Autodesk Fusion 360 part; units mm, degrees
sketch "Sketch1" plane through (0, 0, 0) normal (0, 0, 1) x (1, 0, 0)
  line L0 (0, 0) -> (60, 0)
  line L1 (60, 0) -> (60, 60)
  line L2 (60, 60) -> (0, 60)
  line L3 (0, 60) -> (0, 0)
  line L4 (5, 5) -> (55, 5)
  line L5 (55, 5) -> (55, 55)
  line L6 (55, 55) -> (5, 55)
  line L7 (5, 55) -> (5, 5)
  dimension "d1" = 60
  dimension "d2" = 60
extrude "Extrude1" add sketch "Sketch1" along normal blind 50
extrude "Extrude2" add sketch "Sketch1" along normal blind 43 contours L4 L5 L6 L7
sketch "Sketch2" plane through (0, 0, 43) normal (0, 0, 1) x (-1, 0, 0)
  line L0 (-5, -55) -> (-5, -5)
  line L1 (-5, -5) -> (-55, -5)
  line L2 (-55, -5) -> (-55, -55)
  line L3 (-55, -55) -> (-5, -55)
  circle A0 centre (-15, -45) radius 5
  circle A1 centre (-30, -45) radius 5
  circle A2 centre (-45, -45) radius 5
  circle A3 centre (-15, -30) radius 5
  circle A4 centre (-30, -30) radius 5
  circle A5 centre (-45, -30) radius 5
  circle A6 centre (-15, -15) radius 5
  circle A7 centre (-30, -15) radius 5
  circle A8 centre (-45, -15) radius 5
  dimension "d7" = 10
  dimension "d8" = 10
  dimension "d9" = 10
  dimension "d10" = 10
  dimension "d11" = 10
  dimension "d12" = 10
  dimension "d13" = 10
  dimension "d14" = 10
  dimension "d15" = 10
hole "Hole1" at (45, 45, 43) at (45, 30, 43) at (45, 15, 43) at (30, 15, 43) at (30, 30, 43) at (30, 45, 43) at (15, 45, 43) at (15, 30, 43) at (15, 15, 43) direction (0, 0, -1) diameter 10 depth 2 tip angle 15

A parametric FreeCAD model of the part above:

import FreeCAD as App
import Part
import Sketcher

V = App.Vector
Q = App.Units.Quantity


def add_polygon(sketch, points):
    """Adds a closed chain of lines whose ends are joined by coincident constraints."""
    first, n = sketch.GeometryCount, len(points)
    for a, b in zip(points, points[1:] + points[:1]):
        sketch.addGeometry(Part.LineSegment(App.Vector(*a, 0), App.Vector(*b, 0)), False)
    for i in range(n):
        sketch.addConstraint(Sketcher.Constraint("Coincident", first + i, 2, first + (i + 1) % n, 1))

doc = App.newDocument("Part")
body = doc.addObject("PartDesign::Body", "Body")

# Sketch on XY plane
sketch1 = body.newObject("Sketcher::SketchObject", "Sketch")
sketch1.AttachmentSupport = (doc.getObject("XY_Plane"), [""])
sketch1.MapMode = "FlatFace"
add_polygon(sketch1, [(0, 60), (0, 0), (60, 0), (60, 60)])  # lines 0-3
add_polygon(sketch1, [(55, 5), (5, 5), (5, 55), (55, 55)])  # lines 4-7
sketch1.addConstraint(Sketcher.Constraint("Vertical", 0))
sketch1.addConstraint(Sketcher.Constraint("Horizontal", 1))
sketch1.addConstraint(Sketcher.Constraint("Vertical", 2))
sketch1.addConstraint(Sketcher.Constraint("Horizontal", 3))
sketch1.addConstraint(Sketcher.Constraint("Horizontal", 4))
sketch1.addConstraint(Sketcher.Constraint("Vertical", 5))
sketch1.addConstraint(Sketcher.Constraint("Horizontal", 6))
sketch1.addConstraint(Sketcher.Constraint("Vertical", 7))
sketch1.addConstraint(Sketcher.Constraint("Coincident", 0, 2, -1, 1))
sketch1.addConstraint(Sketcher.Constraint("Equal", 3, 0))
sketch1.addConstraint(Sketcher.Constraint("Equal", 6, 5))
sketch1.addConstraint(Sketcher.Constraint("DistanceX", 1, 1, 1, 2, Q("60 mm")))
sketch1.addConstraint(Sketcher.Constraint("DistanceX", 4, 2, 4, 1, Q("50 mm")))
sketch1.addConstraint(Sketcher.Constraint("DistanceX", -1, 1, 4, 2, Q("5 mm")))
sketch1.addConstraint(Sketcher.Constraint("DistanceY", -1, 1, 4, 2, Q("5 mm")))
pad1 = body.newObject("PartDesign::Pad", "Pad")
pad1.Profile = sketch1
pad1.Length = 50

# Sketch on XY plane
sketch2 = body.newObject("Sketcher::SketchObject", "Sketch001")
sketch2.AttachmentSupport = (doc.getObject("XY_Plane"), [""])
sketch2.MapMode = "FlatFace"
add_polygon(sketch2, [(5, 55), (5, 5), (55, 5), (55, 55)])  # lines 0-3
sketch2.addConstraint(Sketcher.Constraint("Vertical", 0))
sketch2.addConstraint(Sketcher.Constraint("Horizontal", 1))
sketch2.addConstraint(Sketcher.Constraint("Vertical", 2))
sketch2.addConstraint(Sketcher.Constraint("Horizontal", 3))
sketch2.addConstraint(Sketcher.Constraint("Equal", 3, 0))
sketch2.addConstraint(Sketcher.Constraint("DistanceX", 1, 1, 1, 2, Q("50 mm")))
sketch2.addConstraint(Sketcher.Constraint("DistanceX", -1, 1, 0, 2, Q("5 mm")))
sketch2.addConstraint(Sketcher.Constraint("DistanceY", -1, 1, 0, 2, Q("5 mm")))
pad2 = body.newObject("PartDesign::Pad", "Pad001")
pad2.Profile = sketch2
pad2.Length = 43

# Sketch on XY plane
sketch3 = body.newObject("Sketcher::SketchObject", "Sketch002")
sketch3.AttachmentSupport = (doc.getObject("XY_Plane"), [""])
sketch3.MapMode = "FlatFace"
sketch3.AttachmentOffset = App.Placement(V(0, 0, 43), App.Rotation())
sketch3.addGeometry(Part.Circle(V(45, 45, 0), V(0, 0, 1), 5), False)
sketch3.addGeometry(Part.Circle(V(45, 30, 0), V(0, 0, 1), 5), False)
sketch3.addGeometry(Part.Circle(V(45, 15, 0), V(0, 0, 1), 5), False)
sketch3.addGeometry(Part.Circle(V(30, 15, 0), V(0, 0, 1), 5), False)
sketch3.addGeometry(Part.Circle(V(30, 30, 0), V(0, 0, 1), 5), False)
sketch3.addGeometry(Part.Circle(V(30, 45, 0), V(0, 0, 1), 5), False)
sketch3.addGeometry(Part.Circle(V(15, 45, 0), V(0, 0, 1), 5), False)
sketch3.addGeometry(Part.Circle(V(15, 30, 0), V(0, 0, 1), 5), False)
sketch3.addGeometry(Part.Circle(V(15, 15, 0), V(0, 0, 1), 5), False)
sketch3.addConstraint(Sketcher.Constraint("Equal", 0, 1))
sketch3.addConstraint(Sketcher.Constraint("Equal", 1, 2))
sketch3.addConstraint(Sketcher.Constraint("Equal", 2, 3))
sketch3.addConstraint(Sketcher.Constraint("Equal", 3, 4))
sketch3.addConstraint(Sketcher.Constraint("Equal", 4, 5))
sketch3.addConstraint(Sketcher.Constraint("Equal", 5, 6))
sketch3.addConstraint(Sketcher.Constraint("Equal", 6, 7))
sketch3.addConstraint(Sketcher.Constraint("Equal", 7, 8))
sketch3.addConstraint(Sketcher.Constraint("Horizontal", 2, 3, 3, 3))
sketch3.addConstraint(Sketcher.Constraint("Horizontal", 1, 3, 4, 3))
sketch3.addConstraint(Sketcher.Constraint("Horizontal", 0, 3, 5, 3))
sketch3.addConstraint(Sketcher.Constraint("Horizontal", 5, 3, 6, 3))
sketch3.addConstraint(Sketcher.Constraint("Horizontal", 4, 3, 7, 3))
sketch3.addConstraint(Sketcher.Constraint("Horizontal", 3, 3, 8, 3))
sketch3.addConstraint(Sketcher.Constraint("Vertical", 0, 3, 1, 3))
sketch3.addConstraint(Sketcher.Constraint("Vertical", 1, 3, 2, 3))
sketch3.addConstraint(Sketcher.Constraint("Vertical", 3, 3, 4, 3))
sketch3.addConstraint(Sketcher.Constraint("Vertical", 4, 3, 5, 3))
sketch3.addConstraint(Sketcher.Constraint("Vertical", 6, 3, 7, 3))
sketch3.addConstraint(Sketcher.Constraint("Vertical", 7, 3, 8, 3))
sketch3.addConstraint(Sketcher.Constraint("Diameter", 0, Q("10 mm")))
sketch3.addConstraint(Sketcher.Constraint("DistanceX", -1, 1, 0, 3, Q("45 mm")))
sketch3.addConstraint(Sketcher.Constraint("DistanceY", -1, 1, 0, 3, Q("45 mm")))
sketch3.addConstraint(Sketcher.Constraint("DistanceY", -1, 1, 1, 3, Q("30 mm")))
sketch3.addConstraint(Sketcher.Constraint("DistanceY", -1, 1, 2, 3, Q("15 mm")))
sketch3.addConstraint(Sketcher.Constraint("DistanceX", -1, 1, 3, 3, Q("30 mm")))
sketch3.addConstraint(Sketcher.Constraint("DistanceX", -1, 1, 6, 3, Q("15 mm")))
doc.recompute()
hole = body.newObject("PartDesign::Hole", "Hole")
hole.Profile = sketch3
hole.ThreadType = "None"
hole.Diameter = 10
hole.DepthType = "Dimension"
hole.Depth = 2
hole.DrillPoint = "Angled"
hole.DrillPointAngle = 15

doc.recompute()
